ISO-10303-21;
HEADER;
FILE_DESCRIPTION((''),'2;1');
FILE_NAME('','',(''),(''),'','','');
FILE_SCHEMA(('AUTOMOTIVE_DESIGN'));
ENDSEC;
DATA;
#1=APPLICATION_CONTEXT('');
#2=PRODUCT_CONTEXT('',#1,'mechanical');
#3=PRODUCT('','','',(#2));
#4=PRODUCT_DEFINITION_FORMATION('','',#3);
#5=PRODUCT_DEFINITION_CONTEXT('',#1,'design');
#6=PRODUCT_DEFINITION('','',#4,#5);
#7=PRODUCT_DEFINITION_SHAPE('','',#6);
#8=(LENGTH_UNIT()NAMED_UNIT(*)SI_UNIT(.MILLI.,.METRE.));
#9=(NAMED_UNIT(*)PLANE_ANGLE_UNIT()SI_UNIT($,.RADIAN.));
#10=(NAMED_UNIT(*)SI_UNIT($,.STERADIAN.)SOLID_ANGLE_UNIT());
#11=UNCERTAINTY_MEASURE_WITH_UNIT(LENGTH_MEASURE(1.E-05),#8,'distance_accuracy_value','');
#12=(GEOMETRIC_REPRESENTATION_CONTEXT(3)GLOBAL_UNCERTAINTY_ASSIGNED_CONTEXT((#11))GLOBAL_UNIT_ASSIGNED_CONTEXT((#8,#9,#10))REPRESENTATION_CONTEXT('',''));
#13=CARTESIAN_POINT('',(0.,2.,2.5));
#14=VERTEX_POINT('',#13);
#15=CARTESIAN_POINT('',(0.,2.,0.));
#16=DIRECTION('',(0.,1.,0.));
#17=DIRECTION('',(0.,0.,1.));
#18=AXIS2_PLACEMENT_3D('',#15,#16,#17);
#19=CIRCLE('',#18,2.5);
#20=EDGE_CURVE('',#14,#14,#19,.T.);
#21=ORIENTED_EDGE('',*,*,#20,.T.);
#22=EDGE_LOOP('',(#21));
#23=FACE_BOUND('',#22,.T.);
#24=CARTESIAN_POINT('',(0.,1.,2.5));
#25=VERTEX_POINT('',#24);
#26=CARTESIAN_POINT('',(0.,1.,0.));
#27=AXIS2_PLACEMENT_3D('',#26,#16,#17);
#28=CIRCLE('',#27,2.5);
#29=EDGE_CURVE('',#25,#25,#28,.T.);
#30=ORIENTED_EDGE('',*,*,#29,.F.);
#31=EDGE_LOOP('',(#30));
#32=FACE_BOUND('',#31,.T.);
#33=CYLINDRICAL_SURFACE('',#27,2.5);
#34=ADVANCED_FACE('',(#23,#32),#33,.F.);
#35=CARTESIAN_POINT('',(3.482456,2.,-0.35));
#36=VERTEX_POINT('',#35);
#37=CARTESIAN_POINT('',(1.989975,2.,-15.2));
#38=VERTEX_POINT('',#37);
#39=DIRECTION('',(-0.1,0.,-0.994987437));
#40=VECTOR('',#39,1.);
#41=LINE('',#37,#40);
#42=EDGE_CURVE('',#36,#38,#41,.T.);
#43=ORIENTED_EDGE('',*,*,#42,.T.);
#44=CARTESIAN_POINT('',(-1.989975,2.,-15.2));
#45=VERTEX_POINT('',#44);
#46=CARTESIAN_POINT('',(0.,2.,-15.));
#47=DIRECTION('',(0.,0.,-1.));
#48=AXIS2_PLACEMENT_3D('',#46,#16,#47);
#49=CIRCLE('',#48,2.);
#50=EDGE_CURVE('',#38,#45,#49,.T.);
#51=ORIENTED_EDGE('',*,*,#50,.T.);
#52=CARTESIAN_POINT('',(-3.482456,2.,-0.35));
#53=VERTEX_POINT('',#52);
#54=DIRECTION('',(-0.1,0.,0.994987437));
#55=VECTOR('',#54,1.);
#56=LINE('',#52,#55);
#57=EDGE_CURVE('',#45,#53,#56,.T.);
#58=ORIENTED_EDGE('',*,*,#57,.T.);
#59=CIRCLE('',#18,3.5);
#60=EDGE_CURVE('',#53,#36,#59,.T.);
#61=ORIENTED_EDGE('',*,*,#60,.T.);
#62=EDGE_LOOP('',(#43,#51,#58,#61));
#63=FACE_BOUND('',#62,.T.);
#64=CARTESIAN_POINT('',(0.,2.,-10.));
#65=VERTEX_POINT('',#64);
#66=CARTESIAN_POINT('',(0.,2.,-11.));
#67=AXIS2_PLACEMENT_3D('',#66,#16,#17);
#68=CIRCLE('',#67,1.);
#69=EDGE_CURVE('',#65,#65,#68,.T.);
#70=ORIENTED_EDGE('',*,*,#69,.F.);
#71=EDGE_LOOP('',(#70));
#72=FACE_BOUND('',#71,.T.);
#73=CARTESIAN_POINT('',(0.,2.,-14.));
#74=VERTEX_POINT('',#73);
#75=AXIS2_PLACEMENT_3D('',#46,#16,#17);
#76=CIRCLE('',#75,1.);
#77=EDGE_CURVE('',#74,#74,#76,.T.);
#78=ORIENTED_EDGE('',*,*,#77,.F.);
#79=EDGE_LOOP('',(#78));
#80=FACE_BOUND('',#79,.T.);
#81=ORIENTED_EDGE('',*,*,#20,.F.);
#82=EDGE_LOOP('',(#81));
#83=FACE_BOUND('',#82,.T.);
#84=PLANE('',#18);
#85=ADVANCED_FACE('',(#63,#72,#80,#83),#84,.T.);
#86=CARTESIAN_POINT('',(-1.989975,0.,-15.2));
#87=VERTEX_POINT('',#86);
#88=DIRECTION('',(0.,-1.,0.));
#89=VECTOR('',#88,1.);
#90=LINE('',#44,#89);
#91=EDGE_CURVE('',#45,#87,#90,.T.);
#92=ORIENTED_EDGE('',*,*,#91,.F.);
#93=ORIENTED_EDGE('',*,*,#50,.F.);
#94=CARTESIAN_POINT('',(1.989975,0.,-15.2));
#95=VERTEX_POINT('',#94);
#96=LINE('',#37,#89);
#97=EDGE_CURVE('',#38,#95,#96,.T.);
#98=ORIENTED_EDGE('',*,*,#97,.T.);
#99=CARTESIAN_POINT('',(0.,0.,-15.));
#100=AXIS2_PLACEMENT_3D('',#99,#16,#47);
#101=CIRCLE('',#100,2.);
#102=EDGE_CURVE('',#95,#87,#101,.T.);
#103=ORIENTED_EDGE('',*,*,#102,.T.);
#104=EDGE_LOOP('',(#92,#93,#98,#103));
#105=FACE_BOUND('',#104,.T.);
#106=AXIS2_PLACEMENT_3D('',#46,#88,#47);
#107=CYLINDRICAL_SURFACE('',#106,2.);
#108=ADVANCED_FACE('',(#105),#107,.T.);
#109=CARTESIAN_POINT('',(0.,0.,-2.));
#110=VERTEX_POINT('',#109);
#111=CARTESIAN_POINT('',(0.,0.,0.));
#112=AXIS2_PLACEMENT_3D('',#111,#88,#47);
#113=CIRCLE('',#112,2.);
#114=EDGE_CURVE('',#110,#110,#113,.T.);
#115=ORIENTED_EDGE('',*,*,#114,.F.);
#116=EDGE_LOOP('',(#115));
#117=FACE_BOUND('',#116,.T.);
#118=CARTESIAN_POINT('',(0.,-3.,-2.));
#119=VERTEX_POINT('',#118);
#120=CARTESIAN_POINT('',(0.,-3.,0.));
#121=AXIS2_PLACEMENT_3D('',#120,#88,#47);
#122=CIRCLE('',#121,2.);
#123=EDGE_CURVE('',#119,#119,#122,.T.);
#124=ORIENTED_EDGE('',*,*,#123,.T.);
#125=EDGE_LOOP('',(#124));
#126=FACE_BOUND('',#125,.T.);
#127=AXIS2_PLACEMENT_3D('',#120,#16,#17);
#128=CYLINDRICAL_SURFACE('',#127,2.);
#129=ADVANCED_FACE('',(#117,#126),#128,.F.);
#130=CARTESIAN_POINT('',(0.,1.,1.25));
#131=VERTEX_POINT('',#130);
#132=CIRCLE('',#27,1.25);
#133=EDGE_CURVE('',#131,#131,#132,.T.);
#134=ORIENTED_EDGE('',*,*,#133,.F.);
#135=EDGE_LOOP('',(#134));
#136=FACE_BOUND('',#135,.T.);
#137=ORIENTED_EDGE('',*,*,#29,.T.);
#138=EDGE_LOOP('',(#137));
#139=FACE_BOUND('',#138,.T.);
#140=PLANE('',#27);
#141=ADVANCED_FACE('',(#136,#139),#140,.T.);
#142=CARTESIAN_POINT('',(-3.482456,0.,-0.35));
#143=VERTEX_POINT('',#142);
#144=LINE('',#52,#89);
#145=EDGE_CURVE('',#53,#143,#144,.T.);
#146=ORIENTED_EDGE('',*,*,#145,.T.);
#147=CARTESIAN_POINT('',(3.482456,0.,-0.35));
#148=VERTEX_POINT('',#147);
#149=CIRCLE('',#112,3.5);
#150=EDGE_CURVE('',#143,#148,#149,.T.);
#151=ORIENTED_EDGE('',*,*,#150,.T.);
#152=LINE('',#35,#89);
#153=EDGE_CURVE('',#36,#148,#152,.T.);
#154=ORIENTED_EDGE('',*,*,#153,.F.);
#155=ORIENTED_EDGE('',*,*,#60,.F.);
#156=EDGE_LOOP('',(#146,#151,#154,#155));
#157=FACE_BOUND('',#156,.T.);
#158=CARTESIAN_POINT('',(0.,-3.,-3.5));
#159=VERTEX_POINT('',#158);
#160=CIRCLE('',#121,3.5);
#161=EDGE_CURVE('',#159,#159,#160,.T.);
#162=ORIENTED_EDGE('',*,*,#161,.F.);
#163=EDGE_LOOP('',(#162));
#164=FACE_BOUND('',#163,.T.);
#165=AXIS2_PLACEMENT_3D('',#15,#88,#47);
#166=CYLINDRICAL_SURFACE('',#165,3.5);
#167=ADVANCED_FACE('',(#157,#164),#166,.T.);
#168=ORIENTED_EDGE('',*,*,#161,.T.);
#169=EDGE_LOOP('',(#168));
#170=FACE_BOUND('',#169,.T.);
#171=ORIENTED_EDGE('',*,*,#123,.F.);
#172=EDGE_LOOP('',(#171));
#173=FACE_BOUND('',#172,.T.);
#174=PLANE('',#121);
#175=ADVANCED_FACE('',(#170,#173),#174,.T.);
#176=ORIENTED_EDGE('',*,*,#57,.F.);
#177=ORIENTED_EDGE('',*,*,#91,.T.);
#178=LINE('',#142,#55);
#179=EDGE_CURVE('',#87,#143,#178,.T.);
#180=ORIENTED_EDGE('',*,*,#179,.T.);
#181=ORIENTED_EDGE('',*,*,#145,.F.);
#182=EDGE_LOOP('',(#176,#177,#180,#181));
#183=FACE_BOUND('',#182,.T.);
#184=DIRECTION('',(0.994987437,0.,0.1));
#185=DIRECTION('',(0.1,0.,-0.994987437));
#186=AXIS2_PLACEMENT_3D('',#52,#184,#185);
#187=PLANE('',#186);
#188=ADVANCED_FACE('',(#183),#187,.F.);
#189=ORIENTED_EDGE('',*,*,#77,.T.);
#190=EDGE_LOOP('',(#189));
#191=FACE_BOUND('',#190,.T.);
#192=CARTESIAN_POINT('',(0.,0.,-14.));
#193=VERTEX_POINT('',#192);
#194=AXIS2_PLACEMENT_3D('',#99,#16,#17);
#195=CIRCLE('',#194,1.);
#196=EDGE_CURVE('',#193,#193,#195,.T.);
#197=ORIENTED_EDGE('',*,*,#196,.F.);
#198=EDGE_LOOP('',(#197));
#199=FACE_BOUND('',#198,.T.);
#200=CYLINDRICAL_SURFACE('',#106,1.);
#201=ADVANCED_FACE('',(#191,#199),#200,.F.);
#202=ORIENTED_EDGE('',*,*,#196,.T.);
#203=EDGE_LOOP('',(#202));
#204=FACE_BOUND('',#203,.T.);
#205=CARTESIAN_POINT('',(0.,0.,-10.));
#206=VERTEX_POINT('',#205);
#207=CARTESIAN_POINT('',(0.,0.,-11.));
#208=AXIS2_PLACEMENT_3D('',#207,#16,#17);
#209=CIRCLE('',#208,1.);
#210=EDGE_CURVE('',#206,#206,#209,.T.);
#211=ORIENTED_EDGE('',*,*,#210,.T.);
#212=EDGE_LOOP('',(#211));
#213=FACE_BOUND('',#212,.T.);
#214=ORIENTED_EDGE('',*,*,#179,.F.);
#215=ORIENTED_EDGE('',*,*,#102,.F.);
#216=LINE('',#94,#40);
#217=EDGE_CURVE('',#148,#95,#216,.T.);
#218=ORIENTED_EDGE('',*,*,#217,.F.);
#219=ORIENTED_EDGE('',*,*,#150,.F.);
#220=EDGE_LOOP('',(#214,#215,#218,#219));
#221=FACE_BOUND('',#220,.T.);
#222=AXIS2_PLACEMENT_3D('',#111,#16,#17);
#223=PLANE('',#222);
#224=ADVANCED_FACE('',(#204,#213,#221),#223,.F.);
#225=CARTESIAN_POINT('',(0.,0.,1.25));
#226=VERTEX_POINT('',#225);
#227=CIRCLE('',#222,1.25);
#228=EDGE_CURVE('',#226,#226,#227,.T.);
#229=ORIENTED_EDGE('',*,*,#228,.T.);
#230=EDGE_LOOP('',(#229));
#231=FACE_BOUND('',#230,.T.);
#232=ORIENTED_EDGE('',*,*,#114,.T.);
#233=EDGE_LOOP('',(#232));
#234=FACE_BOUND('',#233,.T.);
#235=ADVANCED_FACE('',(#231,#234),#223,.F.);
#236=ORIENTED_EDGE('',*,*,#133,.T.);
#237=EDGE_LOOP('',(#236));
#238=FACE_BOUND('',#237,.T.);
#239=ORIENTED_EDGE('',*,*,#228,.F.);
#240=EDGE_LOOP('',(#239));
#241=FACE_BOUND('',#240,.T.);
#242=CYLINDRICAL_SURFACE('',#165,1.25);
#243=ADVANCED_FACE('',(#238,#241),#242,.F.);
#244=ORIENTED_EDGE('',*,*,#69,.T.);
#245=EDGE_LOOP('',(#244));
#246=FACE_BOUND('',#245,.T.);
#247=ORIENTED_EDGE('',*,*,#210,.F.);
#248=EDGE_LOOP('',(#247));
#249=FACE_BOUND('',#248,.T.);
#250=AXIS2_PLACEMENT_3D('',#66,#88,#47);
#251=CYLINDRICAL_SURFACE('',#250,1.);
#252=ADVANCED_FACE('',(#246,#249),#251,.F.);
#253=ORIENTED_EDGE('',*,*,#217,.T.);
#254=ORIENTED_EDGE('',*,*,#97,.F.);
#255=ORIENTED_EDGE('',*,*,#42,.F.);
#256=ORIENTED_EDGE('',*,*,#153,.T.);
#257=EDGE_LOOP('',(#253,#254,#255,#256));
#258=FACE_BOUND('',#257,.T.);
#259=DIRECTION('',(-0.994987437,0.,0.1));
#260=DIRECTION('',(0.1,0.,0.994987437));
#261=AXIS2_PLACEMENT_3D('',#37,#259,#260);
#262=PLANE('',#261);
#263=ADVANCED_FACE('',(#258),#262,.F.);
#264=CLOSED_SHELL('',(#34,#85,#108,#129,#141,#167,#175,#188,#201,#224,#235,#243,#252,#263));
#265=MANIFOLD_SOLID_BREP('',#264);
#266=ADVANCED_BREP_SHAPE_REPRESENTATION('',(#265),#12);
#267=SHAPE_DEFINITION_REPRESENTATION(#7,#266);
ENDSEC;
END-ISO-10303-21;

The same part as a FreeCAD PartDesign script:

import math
import FreeCAD as App
import Part
import Sketcher
from FreeCAD import Vector
Q = App.Units.Quantity

doc = App.newDocument("Part")
params = doc.addObject("Spreadsheet::Sheet", "Params")
for row, (alias, value) in enumerate([
    ("sketch1_diameter", "2 mm"),
    ("sketch1_radius", "2 mm"),
    ("sketch1_diameter2", "2.5 mm"),
    ("sketch1_radius2", "3.5 mm"),
    ("pad1_length", "2 mm"),
    ("sketch2_diameter", "7 mm"),
    ("sketch2_diameter2", "4 mm"),
    ("pad2_length", "3 mm"),
    ("sketch3_diameter", "5 mm"),
    ("pocket1_length", "1 mm"),
], start=1):
    params.set(f"A{row}", alias)
    params.set(f"B{row}", "=" + value)
    params.setAlias(f"B{row}", alias)

body = doc.addObject("PartDesign::Body", "Body")

sketch1 = body.newObject("Sketcher::SketchObject", "Sketch")
sketch1.AttachmentSupport = (doc.getObject("XZ_Plane"), [""])
sketch1.MapMode = "FlatFace"
sketch1.addGeometry(Part.LineSegment(Vector(-2, -15.2, 0), Vector(-3.5, -0.3, 0)), False)
sketch1.addGeometry(Part.ArcOfCircle(Part.Circle(Vector(0, 0, 0), Vector(0, 0, 1), 3.5), math.radians(-6), math.radians(186)), False)
sketch1.addGeometry(Part.LineSegment(Vector(3.5, -0.3, 0), Vector(2, -15.2, 0)), False)
sketch1.addGeometry(Part.ArcOfCircle(Part.Circle(Vector(0, -15, 0), Vector(0, 0, 1), 2), math.radians(-174), math.radians(-6)), False)
sketch1.addGeometry(Part.Circle(Vector(0, 0, 0), Vector(0, 0, 1), 1.2), False)
sketch1.addGeometry(Part.Circle(Vector(0, -11, 0), Vector(0, 0, 1), 1), False)
sketch1.addGeometry(Part.Circle(Vector(0, -15, 0), Vector(0, 0, 1), 1), False)
sketch1.addConstraint(Sketcher.Constraint("Tangent", 0, 2, 1, 2))
sketch1.addConstraint(Sketcher.Constraint("Tangent", 1, 1, 2, 1))
sketch1.addConstraint(Sketcher.Constraint("Tangent", 2, 2, 3, 2))
sketch1.addConstraint(Sketcher.Constraint("Tangent", 3, 1, 0, 1))
sketch1.addConstraint(Sketcher.Constraint("Coincident", 1, 3, -1, 1))
sketch1.addConstraint(Sketcher.Constraint("Coincident", 4, 3, -1, 1))
sketch1.addConstraint(Sketcher.Constraint("Coincident", 6, 3, 3, 3))
sketch1.addConstraint(Sketcher.Constraint("Equal", 5, 6))
sketch1.addConstraint(Sketcher.Constraint("PointOnObject", 3, 3, -2))
sketch1.addConstraint(Sketcher.Constraint("PointOnObject", 5, 3, -2))
sketch1.addConstraint(Sketcher.Constraint("Diameter", 5, Q("2 mm")))
sketch1.addConstraint(Sketcher.Constraint("Radius", 3, Q("2 mm")))
sketch1.addConstraint(Sketcher.Constraint("Diameter", 4, Q("2.5 mm")))
sketch1.addConstraint(Sketcher.Constraint("Radius", 1, Q("3.5 mm")))
sketch1.addConstraint(Sketcher.Constraint("DistanceY", 3, 3, -1, 1, Q("15 mm")))
sketch1.addConstraint(Sketcher.Constraint("DistanceY", 5, 3, -1, 1, Q("11 mm")))
sketch1.setExpression("Constraints[10]", "Params.sketch1_diameter")
sketch1.setExpression("Constraints[11]", "Params.sketch1_radius")
sketch1.setExpression("Constraints[12]", "Params.sketch1_diameter2")
sketch1.setExpression("Constraints[13]", "Params.sketch1_radius2")
pad1 = body.newObject("PartDesign::Pad", "Pad")
pad1.Profile = sketch1
pad1.setExpression("Length", "Params.pad1_length")
pad1.Reversed = True

sketch2 = body.newObject("Sketcher::SketchObject", "Sketch001")
sketch2.AttachmentSupport = (doc.getObject("XZ_Plane"), [""])
sketch2.MapMode = "FlatFace"
sketch2.AttachmentOffset = App.Placement(Vector(0, 0, 3), App.Rotation())
sketch2.addGeometry(Part.Circle(Vector(0, 0, 0), Vector(0, 0, 1), 3.5), False)
sketch2.addGeometry(Part.Circle(Vector(0, 0, 0), Vector(0, 0, 1), 2), False)
sketch2.addConstraint(Sketcher.Constraint("Coincident", 0, 3, -1, 1))
sketch2.addConstraint(Sketcher.Constraint("Coincident", 1, 3, -1, 1))
sketch2.addConstraint(Sketcher.Constraint("Diameter", 0, Q("7 mm")))
sketch2.addConstraint(Sketcher.Constraint("Diameter", 1, Q("4 mm")))
sketch2.setExpression("Constraints[2]", "Params.sketch2_diameter")
sketch2.setExpression("Constraints[3]", "Params.sketch2_diameter2")
pad2 = body.newObject("PartDesign::Pad", "Pad001")
pad2.Profile = sketch2
pad2.setExpression("Length", "Params.pad2_length")
pad2.Reversed = True

sketch3 = body.newObject("Sketcher::SketchObject", "Sketch002")
sketch3.AttachmentSupport = (doc.getObject("XZ_Plane"), [""])
sketch3.MapMode = "FlatFace"
sketch3.AttachmentOffset = App.Placement(Vector(0, 0, -2), App.Rotation())
sketch3.addGeometry(Part.Circle(Vector(0, 0, 0), Vector(0, 0, 1), 2.5), False)
sketch3.addConstraint(Sketcher.Constraint("Coincident", 0, 3, -1, 1))
sketch3.addConstraint(Sketcher.Constraint("Diameter", 0, Q("5 mm")))
sketch3.setExpression("Constraints[1]", "Params.sketch3_diameter")
pocket1 = body.newObject("PartDesign::Pocket", "Pocket")
pocket1.Profile = sketch3
pocket1.setExpression("Length", "Params.pocket1_length")
pocket1.Reversed = True

doc.recompute()
